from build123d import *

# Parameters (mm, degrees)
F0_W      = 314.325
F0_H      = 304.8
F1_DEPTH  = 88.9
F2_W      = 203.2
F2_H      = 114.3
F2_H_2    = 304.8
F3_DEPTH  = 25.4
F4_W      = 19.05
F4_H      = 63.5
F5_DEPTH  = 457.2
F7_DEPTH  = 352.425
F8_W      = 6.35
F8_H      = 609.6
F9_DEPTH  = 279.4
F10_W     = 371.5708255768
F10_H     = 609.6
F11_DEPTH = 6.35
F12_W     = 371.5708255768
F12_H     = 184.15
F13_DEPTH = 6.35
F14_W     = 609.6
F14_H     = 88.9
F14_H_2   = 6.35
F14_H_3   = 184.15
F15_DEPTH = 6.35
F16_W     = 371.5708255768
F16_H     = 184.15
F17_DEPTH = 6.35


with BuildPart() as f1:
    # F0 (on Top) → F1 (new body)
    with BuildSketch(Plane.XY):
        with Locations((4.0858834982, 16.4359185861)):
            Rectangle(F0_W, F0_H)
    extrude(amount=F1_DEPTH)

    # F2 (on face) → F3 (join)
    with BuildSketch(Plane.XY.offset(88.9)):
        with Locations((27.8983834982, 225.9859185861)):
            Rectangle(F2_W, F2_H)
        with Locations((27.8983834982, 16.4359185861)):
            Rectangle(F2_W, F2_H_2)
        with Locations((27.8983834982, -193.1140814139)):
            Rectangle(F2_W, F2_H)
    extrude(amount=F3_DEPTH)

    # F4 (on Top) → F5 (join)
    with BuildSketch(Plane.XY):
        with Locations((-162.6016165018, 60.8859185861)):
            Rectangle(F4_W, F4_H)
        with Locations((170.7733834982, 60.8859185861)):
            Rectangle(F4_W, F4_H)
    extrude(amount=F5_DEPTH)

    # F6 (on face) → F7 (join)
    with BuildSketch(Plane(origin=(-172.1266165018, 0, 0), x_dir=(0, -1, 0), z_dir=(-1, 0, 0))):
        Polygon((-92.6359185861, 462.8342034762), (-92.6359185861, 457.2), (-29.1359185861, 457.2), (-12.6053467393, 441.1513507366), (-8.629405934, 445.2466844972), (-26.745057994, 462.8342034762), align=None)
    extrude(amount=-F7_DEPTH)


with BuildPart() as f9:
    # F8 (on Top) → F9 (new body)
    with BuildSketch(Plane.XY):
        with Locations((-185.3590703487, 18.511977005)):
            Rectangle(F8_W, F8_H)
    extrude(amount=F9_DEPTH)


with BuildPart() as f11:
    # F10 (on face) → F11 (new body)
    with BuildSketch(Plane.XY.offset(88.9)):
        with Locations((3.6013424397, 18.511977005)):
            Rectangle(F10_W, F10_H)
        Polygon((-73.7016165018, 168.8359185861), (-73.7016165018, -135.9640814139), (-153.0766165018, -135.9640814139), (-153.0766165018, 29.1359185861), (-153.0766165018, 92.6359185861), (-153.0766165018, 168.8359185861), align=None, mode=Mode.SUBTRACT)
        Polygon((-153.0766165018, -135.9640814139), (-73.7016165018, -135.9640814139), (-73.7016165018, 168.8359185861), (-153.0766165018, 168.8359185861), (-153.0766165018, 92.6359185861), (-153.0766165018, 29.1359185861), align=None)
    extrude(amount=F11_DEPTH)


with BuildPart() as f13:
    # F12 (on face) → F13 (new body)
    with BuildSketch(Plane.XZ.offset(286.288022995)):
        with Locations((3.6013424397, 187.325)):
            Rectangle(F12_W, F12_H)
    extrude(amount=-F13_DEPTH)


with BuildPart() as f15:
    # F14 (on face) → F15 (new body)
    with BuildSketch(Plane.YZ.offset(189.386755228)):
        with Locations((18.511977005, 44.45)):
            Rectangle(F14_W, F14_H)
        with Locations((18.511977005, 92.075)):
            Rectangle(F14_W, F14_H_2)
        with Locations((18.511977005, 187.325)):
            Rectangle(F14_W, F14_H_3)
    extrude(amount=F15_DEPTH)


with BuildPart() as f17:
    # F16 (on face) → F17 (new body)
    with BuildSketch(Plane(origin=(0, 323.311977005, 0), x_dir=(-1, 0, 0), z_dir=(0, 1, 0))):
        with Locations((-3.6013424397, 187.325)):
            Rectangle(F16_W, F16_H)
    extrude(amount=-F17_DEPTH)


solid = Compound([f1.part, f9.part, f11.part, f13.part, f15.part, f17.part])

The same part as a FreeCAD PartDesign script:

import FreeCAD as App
import Part
import Sketcher
Q = App.Units.Quantity


def add_polygon(sketch, points):
    """Adds a closed chain of lines whose ends are joined by coincident constraints."""
    first, n = sketch.GeometryCount, len(points)
    for a, b in zip(points, points[1:] + points[:1]):
        sketch.addGeometry(Part.LineSegment(App.Vector(*a, 0), App.Vector(*b, 0)), False)
    for i in range(n):
        sketch.addConstraint(Sketcher.Constraint("Coincident", first + i, 2, first + (i + 1) % n, 1))

doc = App.newDocument("Part")
params = doc.addObject("Spreadsheet::Sheet", "Params")
for row, (alias, value) in enumerate([
    ("sketch1_height", "12 in"),
    ("sketch1_width", "12.375 in"),
    ("pad1_length", "3.5 in"),
    ("sketch2_width", "8 in"),
    ("sketch2_height", "21 in"),
    ("pad2_length", "1 in"),
    ("sketch3_height", "2.5 in"),
    ("sketch3_width", "0.75 in"),
    ("pad3_length", "18 in"),
    ("sketch4_width", "2.5 in"),
    ("pad4_length", "13.875 in"),
    ("sketch5_height", "24 in"),
    ("sketch5_width", "0.25 in"),
    ("pad5_length", "11 in"),
    ("sketch6_height", "24 in"),
    ("pad6_length", "0.25 in"),
    ("sketch7_height", "7.25 in"),
    ("pad7_length", "0.25 in"),
    ("sketch8_width", "24 in"),
    ("sketch8_height", "11 in"),
    ("pad8_length", "0.25 in"),
    ("sketch9_height", "7.25 in"),
    ("pad9_length", "0.25 in"),
], start=1):
    params.set(f"A{row}", alias)
    params.set(f"B{row}", "=" + value)
    params.setAlias(f"B{row}", alias)

body = doc.addObject("PartDesign::Body", "Body")

# Sketch on XY plane
sketch1 = body.newObject("Sketcher::SketchObject", "Sketch")
sketch1.AttachmentSupport = (doc.getObject("XY_Plane"), [""])
sketch1.MapMode = "FlatFace"
add_polygon(sketch1, [(-153.076617, 168.835919), (-153.076617, -135.964081), (161.248383, -135.964081), (161.248383, 168.835919)])  # lines 0-3
sketch1.addConstraint([
    Sketcher.Constraint("Vertical", 0),
    Sketcher.Constraint("Horizontal", 1),
    Sketcher.Constraint("Vertical", 2),
    Sketcher.Constraint("Horizontal", 3),
    Sketcher.Constraint("DistanceY", 0, 2, 0, 1, Q("12 in")),
    Sketcher.Constraint("DistanceX", 1, 1, 1, 2, Q("12.375 in")),
    Sketcher.Constraint("DistanceY", 0, 2, -1, 1, Q("135.964081 mm")),
    Sketcher.Constraint("DistanceX", 0, 2, -1, 1, Q("153.076617 mm")),
])
sketch1.setExpression("Constraints[8]", "Params.sketch1_height")
sketch1.setExpression("Constraints[9]", "Params.sketch1_width")
pad1 = body.newObject("PartDesign::Pad", "Pad")
pad1.Profile = sketch1
pad1.setExpression("Length", "Params.pad1_length")

# Sketch on XY plane
sketch2 = body.newObject("Sketcher::SketchObject", "Sketch001")
sketch2.AttachmentSupport = (doc.getObject("XY_Plane"), [""])
sketch2.MapMode = "FlatFace"
sketch2.AttachmentOffset = App.Placement(App.Vector(0, 0, 3.5 * 25.4), App.Rotation())
add_polygon(sketch2, [(-73.701617, 283.135919), (-73.701617, -250.264081), (129.498383, -250.264081), (129.498383, 283.135919)])  # lines 0-3
sketch2.addConstraint([
    Sketcher.Constraint("Vertical", 0),
    Sketcher.Constraint("Horizontal", 1),
    Sketcher.Constraint("Vertical", 2),
    Sketcher.Constraint("Horizontal", 3),
    Sketcher.Constraint("DistanceX", 1, 1, 1, 2, Q("8 in")),
    Sketcher.Constraint("DistanceY", 0, 2, 0, 1, Q("21 in")),
    Sketcher.Constraint("DistanceY", 0, 2, -1, 1, Q("250.264081 mm")),
    Sketcher.Constraint("DistanceX", 0, 2, -1, 1, Q("73.701617 mm")),
])
sketch2.setExpression("Constraints[8]", "Params.sketch2_width")
sketch2.setExpression("Constraints[9]", "Params.sketch2_height")
pad2 = body.newObject("PartDesign::Pad", "Pad001")
pad2.Profile = sketch2
pad2.setExpression("Length", "Params.pad2_length")

# Sketch on XY plane
sketch3 = body.newObject("Sketcher::SketchObject", "Sketch002")
sketch3.AttachmentSupport = (doc.getObject("XY_Plane"), [""])
sketch3.MapMode = "FlatFace"
add_polygon(sketch3, [(-172.126617, 92.635919), (-172.126617, 29.135919), (-153.076617, 29.135919), (-153.076617, 92.635919)])  # lines 0-3
add_polygon(sketch3, [(161.248383, 92.635919), (161.248383, 29.135919), (180.298383, 29.135919), (180.298383, 92.635919)])  # lines 4-7
sketch3.addConstraint([
    Sketcher.Constraint("Vertical", 0),
    Sketcher.Constraint("Horizontal", 1),
    Sketcher.Constraint("Vertical", 2),
    Sketcher.Constraint("Horizontal", 3),
    Sketcher.Constraint("Vertical", 4),
    Sketcher.Constraint("Horizontal", 5),
    Sketcher.Constraint("Vertical", 6),
    Sketcher.Constraint("Horizontal", 7),
    Sketcher.Constraint("Horizontal", 1, 2, 4, 2),
    Sketcher.Constraint("Horizontal", 3, 2, 6, 2),
    Sketcher.Constraint("Equal", 3, 5),
    Sketcher.Constraint("DistanceY", 0, 2, 0, 1, Q("2.5 in")),
    Sketcher.Constraint("DistanceX", 1, 1, 1, 2, Q("0.75 in")),
    Sketcher.Constraint("DistanceX", 1, 2, 4, 2, Q("12.375 in")),
    Sketcher.Constraint("DistanceY", -1, 1, 0, 2, Q("29.135919 mm")),
    Sketcher.Constraint("DistanceX", 0, 2, -1, 1, Q("172.126617 mm")),
])
sketch3.setExpression("Constraints[19]", "Params.sketch3_height")
sketch3.setExpression("Constraints[20]", "Params.sketch3_width")
pad3 = body.newObject("PartDesign::Pad", "Pad002")
pad3.Profile = sketch3
pad3.setExpression("Length", "Params.pad3_length")

# Sketch on YZ plane
sketch4 = body.newObject("Sketcher::SketchObject", "Sketch003")
sketch4.AttachmentSupport = (doc.getObject("YZ_Plane"), [""])
sketch4.MapMode = "FlatFace"
sketch4.AttachmentOffset = App.Placement(App.Vector(0, 0, -172.126617), App.Rotation())
add_polygon(sketch4, [(92.635919, 462.834203), (92.635919, 457.2), (29.135919, 457.2), (12.605347, 441.151351), (8.629406, 445.246684), (26.745058, 462.834203)])  # lines 0-5
sketch4.addConstraint([
    Sketcher.Constraint("Vertical", 0),
    Sketcher.Constraint("Horizontal", 1),
    Sketcher.Constraint("Horizontal", 5),
    Sketcher.Constraint("Perpendicular", 2, 3),
    Sketcher.Constraint("Perpendicular", 3, 4),
    Sketcher.Constraint("DistanceX", 1, 2, 1, 1, Q("2.5 in")),
    Sketcher.Constraint("DistanceY", -1, 1, 0, 2, Q("18 in")),
    Sketcher.Constraint("DistanceX", 5, 1, 5, 2, Q("65.890861 mm")),
    Sketcher.Constraint("Distance", 2, Q("23.039508 mm")),
    Sketcher.Constraint("DistanceY", 0, 2, 0, 1, Q("5.634203 mm")),
    Sketcher.Constraint("DistanceX", -1, 1, 0, 2, Q("92.635919 mm")),
    Sketcher.Constraint("DistanceY", -1, 1, 2, 2, Q("441.151351 mm")),
])
sketch4.setExpression("Constraints[11]", "Params.sketch4_width")
pad4 = body.newObject("PartDesign::Pad", "Pad003")
pad4.Profile = sketch4
pad4.setExpression("Length", "Params.pad4_length")
body2 = doc.addObject("PartDesign::Body", "Body001")

# Sketch on XY plane
sketch5 = body2.newObject("Sketcher::SketchObject", "Sketch004")
sketch5.AttachmentSupport = (doc.getObject("XY_Plane001"), [""])
sketch5.MapMode = "FlatFace"
add_polygon(sketch5, [(-188.53407, 323.311977), (-188.53407, -286.288023), (-182.18407, -286.288023), (-182.18407, 323.311977)])  # lines 0-3
sketch5.addConstraint([
    Sketcher.Constraint("Vertical", 0),
    Sketcher.Constraint("Horizontal", 1),
    Sketcher.Constraint("Vertical", 2),
    Sketcher.Constraint("Horizontal", 3),
    Sketcher.Constraint("DistanceY", 0, 2, 0, 1, Q("24 in")),
    Sketcher.Constraint("DistanceX", 1, 1, 1, 2, Q("0.25 in")),
    Sketcher.Constraint("DistanceX", 0, 2, -1, 1, Q("188.53407 mm")),
    Sketcher.Constraint("DistanceY", 0, 2, -1, 1, Q("286.288023 mm")),
])
sketch5.setExpression("Constraints[8]", "Params.sketch5_height")
sketch5.setExpression("Constraints[9]", "Params.sketch5_width")
pad5 = body2.newObject("PartDesign::Pad", "Pad004")
pad5.Profile = sketch5
pad5.setExpression("Length", "Params.pad5_length")
body3 = doc.addObject("PartDesign::Body", "Body002")

# Sketch on XY plane
sketch6 = body3.newObject("Sketcher::SketchObject", "Sketch005")
sketch6.AttachmentSupport = (doc.getObject("XY_Plane002"), [""])
sketch6.MapMode = "FlatFace"
sketch6.AttachmentOffset = App.Placement(App.Vector(0, 0, 3.5 * 25.4), App.Rotation())
add_polygon(sketch6, [(-182.18407, 323.311977), (-182.18407, -286.288023), (189.386755, -286.288023), (189.386755, 323.311977)])  # lines 0-3
sketch6.addConstraint([
    Sketcher.Constraint("Vertical", 0),
    Sketcher.Constraint("Horizontal", 1),
    Sketcher.Constraint("Vertical", 2),
    Sketcher.Constraint("Horizontal", 3),
    Sketcher.Constraint("DistanceY", 0, 2, 0, 1, Q("24 in")),
    Sketcher.Constraint("DistanceX", 1, 1, 1, 2, Q("371.570826 mm")),
    Sketcher.Constraint("DistanceX", 0, 2, -1, 1, Q("182.18407 mm")),
    Sketcher.Constraint("DistanceY", 0, 2, -1, 1, Q("286.288023 mm")),
])
sketch6.setExpression("Constraints[8]", "Params.sketch6_height")
pad6 = body3.newObject("PartDesign::Pad", "Pad005")
pad6.Profile = sketch6
pad6.setExpression("Length", "Params.pad6_length")
body4 = doc.addObject("PartDesign::Body", "Body003")

# Sketch on XZ plane
sketch7 = body4.newObject("Sketcher::SketchObject", "Sketch006")
sketch7.AttachmentSupport = (doc.getObject("XZ_Plane003"), [""])
sketch7.MapMode = "FlatFace"
sketch7.AttachmentOffset = App.Placement(App.Vector(0, 0, 286.288023), App.Rotation())
add_polygon(sketch7, [(-182.18407, 279.4), (-182.18407, 95.25), (189.386755, 95.25), (189.386755, 279.4)])  # lines 0-3
sketch7.addConstraint([
    Sketcher.Constraint("Vertical", 0),
    Sketcher.Constraint("Horizontal", 1),
    Sketcher.Constraint("Vertical", 2),
    Sketcher.Constraint("Horizontal", 3),
    Sketcher.Constraint("DistanceY", -1, 1, 2, 2, Q("11 in")),
    Sketcher.Constraint("DistanceY", 0, 2, 0, 1, Q("7.25 in")),
    Sketcher.Constraint("DistanceX", 1, 1, 1, 2, Q("371.570826 mm")),
    Sketcher.Constraint("DistanceX", 0, 2, -1, 1, Q("182.18407 mm")),
])
sketch7.setExpression("Constraints[9]", "Params.sketch7_height")
pad7 = body4.newObject("PartDesign::Pad", "Pad006")
pad7.Profile = sketch7
pad7.setExpression("Length", "Params.pad7_length")
pad7.Reversed = True
body5 = doc.addObject("PartDesign::Body", "Body004")

# Sketch on YZ plane
sketch8 = body5.newObject("Sketcher::SketchObject", "Sketch007")
sketch8.AttachmentSupport = (doc.getObject("YZ_Plane004"), [""])
sketch8.MapMode = "FlatFace"
sketch8.AttachmentOffset = App.Placement(App.Vector(0, 0, 189.386755), App.Rotation())
add_polygon(sketch8, [(-286.288023, 0), (323.311977, 0), (323.311977, 279.4), (-286.288023, 279.4)])  # lines 0-3
sketch8.addConstraint([
    Sketcher.Constraint("Horizontal", 0),
    Sketcher.Constraint("Vertical", 1),
    Sketcher.Constraint("Horizontal", 2),
    Sketcher.Constraint("Vertical", 3),
    Sketcher.Constraint("PointOnObject", 0, 2, -1),
    Sketcher.Constraint("DistanceX", 0, 1, 0, 2, Q("24 in")),
    Sketcher.Constraint("DistanceY", 1, 1, 1, 2, Q("11 in")),
    Sketcher.Constraint("DistanceX", -1, 1, 0, 2, Q("323.311977 mm")),
])
sketch8.setExpression("Constraints[9]", "Params.sketch8_width")
sketch8.setExpression("Constraints[10]", "Params.sketch8_height")
pad8 = body5.newObject("PartDesign::Pad", "Pad007")
pad8.Profile = sketch8
pad8.setExpression("Length", "Params.pad8_length")
body6 = doc.addObject("PartDesign::Body", "Body005")

# Sketch on XZ plane
sketch9 = body6.newObject("Sketcher::SketchObject", "Sketch008")
sketch9.AttachmentSupport = (doc.getObject("XZ_Plane005"), [""])
sketch9.MapMode = "FlatFace"
sketch9.AttachmentOffset = App.Placement(App.Vector(0, 0, -323.311977), App.Rotation())
add_polygon(sketch9, [(189.386755, 279.4), (189.386755, 95.25), (-182.18407, 95.25), (-182.18407, 279.4)])  # lines 0-3
sketch9.addConstraint([
    Sketcher.Constraint("Vertical", 0),
    Sketcher.Constraint("Horizontal", 1),
    Sketcher.Constraint("Vertical", 2),
    Sketcher.Constraint("Horizontal", 3),
    Sketcher.Constraint("DistanceY", -1, 1, 2, 2, Q("11 in")),
    Sketcher.Constraint("DistanceY", 0, 2, 0, 1, Q("7.25 in")),
    Sketcher.Constraint("DistanceX", 1, 2, 1, 1, Q("371.570826 mm")),
    Sketcher.Constraint("DistanceX", 1, 2, -1, 1, Q("182.18407 mm")),
])
sketch9.setExpression("Constraints[9]", "Params.sketch9_height")
pad9 = body6.newObject("PartDesign::Pad", "Pad008")
pad9.Profile = sketch9
pad9.setExpression("Length", "Params.pad9_length")

doc.recompute()
